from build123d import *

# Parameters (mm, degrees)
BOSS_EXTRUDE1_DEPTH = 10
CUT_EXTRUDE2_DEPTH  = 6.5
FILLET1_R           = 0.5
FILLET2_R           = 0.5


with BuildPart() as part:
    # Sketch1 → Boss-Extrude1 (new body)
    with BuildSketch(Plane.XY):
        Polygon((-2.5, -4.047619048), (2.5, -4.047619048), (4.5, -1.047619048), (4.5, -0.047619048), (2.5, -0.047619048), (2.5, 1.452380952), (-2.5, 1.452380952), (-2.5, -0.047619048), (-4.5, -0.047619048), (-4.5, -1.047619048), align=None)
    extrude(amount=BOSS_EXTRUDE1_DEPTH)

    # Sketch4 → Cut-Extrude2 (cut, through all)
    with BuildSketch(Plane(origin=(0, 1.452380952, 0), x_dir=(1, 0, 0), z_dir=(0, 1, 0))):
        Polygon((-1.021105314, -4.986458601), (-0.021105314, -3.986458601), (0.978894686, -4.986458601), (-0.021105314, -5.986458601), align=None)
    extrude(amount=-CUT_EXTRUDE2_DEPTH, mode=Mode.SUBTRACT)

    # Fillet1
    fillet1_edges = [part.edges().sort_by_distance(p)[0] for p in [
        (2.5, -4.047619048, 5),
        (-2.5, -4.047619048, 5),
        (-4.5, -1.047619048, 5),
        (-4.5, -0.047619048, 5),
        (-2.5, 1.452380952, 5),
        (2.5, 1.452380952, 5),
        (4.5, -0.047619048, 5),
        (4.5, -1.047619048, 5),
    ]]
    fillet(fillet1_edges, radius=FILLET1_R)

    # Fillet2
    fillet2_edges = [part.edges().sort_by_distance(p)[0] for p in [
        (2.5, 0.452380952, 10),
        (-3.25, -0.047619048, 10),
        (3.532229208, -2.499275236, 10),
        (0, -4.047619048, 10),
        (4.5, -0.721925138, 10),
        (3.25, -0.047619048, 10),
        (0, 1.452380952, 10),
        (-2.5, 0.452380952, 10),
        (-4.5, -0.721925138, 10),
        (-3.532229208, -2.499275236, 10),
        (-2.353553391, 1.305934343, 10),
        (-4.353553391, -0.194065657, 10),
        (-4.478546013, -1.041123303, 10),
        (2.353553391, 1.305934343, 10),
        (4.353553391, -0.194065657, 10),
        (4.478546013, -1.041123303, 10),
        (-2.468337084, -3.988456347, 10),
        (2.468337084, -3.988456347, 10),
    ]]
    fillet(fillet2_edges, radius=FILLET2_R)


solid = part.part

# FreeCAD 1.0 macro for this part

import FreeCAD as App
import Part
import Sketcher
from FreeCAD import Vector


def edges_at(feature, points):
    """Names of the edges that pass closest to the given points."""
    edges = feature.Shape.Edges
    near = lambda p: min(range(len(edges)), key=lambda i: edges[i].distToShape(Part.Vertex(*p))[0])
    return sorted({f"Edge{near(p) + 1}" for p in points})

doc = App.newDocument("Part")
body = doc.addObject("PartDesign::Body", "Body")

# Sketch on XY plane
sketch1 = body.newObject("Sketcher::SketchObject", "Sketch")
sketch1.AttachmentSupport = (doc.getObject("XY_Plane"), [""])
sketch1.MapMode = "FlatFace"
sketch1.addGeometry([
    Part.LineSegment(Vector(-2.5, -4, 0), Vector(2.5, -4, 0)),  # 0
    Part.LineSegment(Vector(2.5, -4, 0), Vector(4.5, -1, 0)),  # 1
    Part.LineSegment(Vector(4.5, -1, 0), Vector(4.5, 0, 0)),  # 2
    Part.LineSegment(Vector(4.5, 0, 0), Vector(2.5, 0, 0)),  # 3
    Part.LineSegment(Vector(2.5, 0, 0), Vector(2.5, 1.5, 0)),  # 4
    Part.LineSegment(Vector(2.5, 1.5, 0), Vector(-2.5, 1.5, 0)),  # 5
    Part.LineSegment(Vector(-2.5, 1.5, 0), Vector(-2.5, 0, 0)),  # 6
    Part.LineSegment(Vector(-2.5, 0, 0), Vector(-4.5, 0, 0)),  # 7
    Part.LineSegment(Vector(-4.5, 0, 0), Vector(-4.5, -1, 0)),  # 8
    Part.LineSegment(Vector(-4.5, -1, 0), Vector(-2.5, -4, 0)),  # 9
], False)
sketch1.addConstraint([
    Sketcher.Constraint("Coincident", 0, 2, 1, 1),
    Sketcher.Constraint("Coincident", 1, 2, 2, 1),
    Sketcher.Constraint("Coincident", 2, 2, 3, 1),
    Sketcher.Constraint("Coincident", 3, 2, 4, 1),
    Sketcher.Constraint("Coincident", 4, 2, 5, 1),
    Sketcher.Constraint("Coincident", 5, 2, 6, 1),
    Sketcher.Constraint("Coincident", 6, 2, 7, 1),
    Sketcher.Constraint("Coincident", 7, 2, 8, 1),
    Sketcher.Constraint("Coincident", 8, 2, 9, 1),
    Sketcher.Constraint("Coincident", 9, 2, 0, 1),
    Sketcher.Constraint("Horizontal", 0),
    Sketcher.Constraint("Vertical", 2),
    Sketcher.Constraint("Horizontal", 3),
    Sketcher.Constraint("Vertical", 4),
    Sketcher.Constraint("Horizontal", 5),
    Sketcher.Constraint("Vertical", 6),
    Sketcher.Constraint("Horizontal", 7),
    Sketcher.Constraint("Vertical", 8),
    Sketcher.Constraint("Symmetric", 3, 2, 6, 2, -2),
    Sketcher.Constraint("Symmetric", 1, 2, 8, 2, -2),
    Sketcher.Constraint("Vertical", 0, 2, 3, 2),
    Sketcher.Constraint("Vertical", 6, 2, 9, 2),
    Sketcher.Constraint("DistanceX", 0, 1, 0, 2, 5.0),
    Sketcher.Constraint("DistanceX", 3, 2, 3, 1, 2.0),
    Sketcher.Constraint("DistanceY", 2, 1, 2, 2, 1.0),
    Sketcher.Constraint("DistanceY", 4, 1, 4, 2, 1.5),
    Sketcher.Constraint("DistanceY", 0, 2, 1, 2, 3.0),
    Sketcher.Constraint("DistanceY", 0, 2, -1, 1, 4.047619),
])
pad1 = body.newObject("PartDesign::Pad", "Pad")
pad1.Profile = sketch1
pad1.Length = 10

# Sketch on XZ plane
sketch2 = body.newObject("Sketcher::SketchObject", "Sketch001")
sketch2.AttachmentSupport = (doc.getObject("XZ_Plane"), [""])
sketch2.MapMode = "FlatFace"
sketch2.AttachmentOffset = App.Placement(Vector(0, 0, -1.452381), App.Rotation())
sketch2.addGeometry([
    Part.LineSegment(Vector(0, 4, 0), Vector(-1, 5, 0)),
    Part.LineSegment(Vector(-1, 5, 0), Vector(0, 6, 0)),
    Part.LineSegment(Vector(0, 6, 0), Vector(1, 5, 0)),
    Part.LineSegment(Vector(1, 5, 0), Vector(0, 4, 0)),
], False)
sketch2.addConstraint([
    Sketcher.Constraint("Coincident", 0, 2, 1, 1),
    Sketcher.Constraint("Coincident", 1, 2, 2, 1),
    Sketcher.Constraint("Coincident", 2, 2, 3, 1),
    Sketcher.Constraint("Coincident", 3, 2, 0, 1),
    Sketcher.Constraint("Perpendicular", 0, 1),
    Sketcher.Constraint("Perpendicular", 1, 2),
    Sketcher.Constraint("Perpendicular", 2, 3),
    Sketcher.Constraint("Horizontal", 0, 2, 2, 2),
    Sketcher.Constraint("Vertical", 1, 2, 3, 2),
    Sketcher.Constraint("DistanceX", 0, 2, 1, 2, 1.0),
    Sketcher.Constraint("DistanceY", -1, 1, 0, 2, 4.986459),
    Sketcher.Constraint("DistanceX", 0, 2, -1, 1, 1.021105),
])
pocket1 = body.newObject("PartDesign::Pocket", "Pocket")
pocket1.Profile = sketch2
pocket1.Type = "ThroughAll"
pocket1.Reversed = True
doc.recompute()

fillet = body.newObject("PartDesign::Fillet", "Fillet")
fillet.Base = (pocket1, edges_at(pocket1, [
    (2.5, -4.048, 5),
    (-2.5, -4.048, 5),
    (-4.5, -1.048, 5),
    (-4.5, -0.048, 5),
    (-2.5, 1.452, 5),
    (2.5, 1.452, 5),
    (4.5, -0.048, 5),
    (4.5, -1.048, 5),
]))
fillet.Radius = 0.5
doc.recompute()

fillet2 = body.newObject("PartDesign::Fillet", "Fillet001")
fillet2.Base = (fillet, edges_at(fillet, [
    (2.5, 0.452, 10),
    (-3.25, -0.048, 10),
    (3.532, -2.499, 10),
    (0, -4.048, 10),
    (4.5, -0.722, 10),
    (3.25, -0.048, 10),
    (0, 1.452, 10),
    (-2.5, 0.452, 10),
    (-4.5, -0.722, 10),
    (-3.532, -2.499, 10),
    (-2.354, 1.306, 10),
    (-4.354, -0.194, 10),
    (-4.479, -1.041, 10),
    (2.354, 1.306, 10),
    (4.354, -0.194, 10),
    (4.479, -1.041, 10),
    (-2.468, -3.988, 10),
    (2.468, -3.988, 10),
]))
fillet2.Radius = 0.5

doc.recompute()
